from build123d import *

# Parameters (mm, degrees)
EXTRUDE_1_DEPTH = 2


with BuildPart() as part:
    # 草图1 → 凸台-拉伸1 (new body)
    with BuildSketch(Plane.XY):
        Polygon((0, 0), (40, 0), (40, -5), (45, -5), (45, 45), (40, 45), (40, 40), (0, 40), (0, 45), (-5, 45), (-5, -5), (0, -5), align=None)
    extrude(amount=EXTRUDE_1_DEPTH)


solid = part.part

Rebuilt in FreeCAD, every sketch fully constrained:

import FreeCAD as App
import Part
import Sketcher

V = App.Vector
Q = App.Units.Quantity


def add_polygon(sketch, points):
    """Adds a closed chain of lines whose ends are joined by coincident constraints."""
    first, n = sketch.GeometryCount, len(points)
    for a, b in zip(points, points[1:] + points[:1]):
        sketch.addGeometry(Part.LineSegment(App.Vector(*a, 0), App.Vector(*b, 0)), False)
    for i in range(n):
        sketch.addConstraint(Sketcher.Constraint("Coincident", first + i, 2, first + (i + 1) % n, 1))

doc = App.newDocument("Part")
body = doc.addObject("PartDesign::Body", "Body")

sketch1 = doc.addObject("Sketcher::SketchObject", "Sketch")
body.addObject(sketch1)
sketch1.AttachmentSupport = (doc.XY_Plane, [""])
sketch1.MapMode = "FlatFace"
add_polygon(sketch1, [(0, 0), (40, 0), (40, -5), (45, -5), (45, 45), (40, 45), (40, 40), (0, 40), (0, 45), (-5, 45), (-5, -5), (0, -5)])
sketch1.addConstraint(Sketcher.Constraint("Horizontal", 0))
sketch1.addConstraint(Sketcher.Constraint("Vertical", 1))
sketch1.addConstraint(Sketcher.Constraint("Horizontal", 2))
sketch1.addConstraint(Sketcher.Constraint("Vertical", 3))
sketch1.addConstraint(Sketcher.Constraint("Horizontal", 4))
sketch1.addConstraint(Sketcher.Constraint("Vertical", 5))
sketch1.addConstraint(Sketcher.Constraint("Horizontal", 6))
sketch1.addConstraint(Sketcher.Constraint("Vertical", 7))
sketch1.addConstraint(Sketcher.Constraint("Horizontal", 8))
sketch1.addConstraint(Sketcher.Constraint("Vertical", 9))
sketch1.addConstraint(Sketcher.Constraint("Horizontal", 10))
sketch1.addConstraint(Sketcher.Constraint("Vertical", 11))
sketch1.addConstraint(Sketcher.Constraint("Coincident", 11, 2, -1, 1))
sketch1.addConstraint(Sketcher.Constraint("PointOnObject", 6, 2, -2))
sketch1.addConstraint(Sketcher.Constraint("Horizontal", 4, 2, 7, 2))
sketch1.addConstraint(Sketcher.Constraint("Horizontal", 2, 2, 9, 2))
sketch1.addConstraint(Sketcher.Constraint("Vertical", 1, 2, 4, 2))
sketch1.addConstraint(Sketcher.Constraint("Equal", 4, 8))
sketch1.addConstraint(Sketcher.Constraint("Equal", 10, 1))
sketch1.addConstraint(Sketcher.Constraint("Equal", 1, 5))
sketch1.addConstraint(Sketcher.Constraint("DistanceX", 0, 1, 0, 2, Q("40 mm")))
sketch1.addConstraint(Sketcher.Constraint("DistanceX", 2, 1, 2, 2, Q("5 mm")))
sketch1.addConstraint(Sketcher.Constraint("DistanceY", 3, 1, 3, 2, Q("50 mm")))
pad1 = doc.addObject("PartDesign::Pad", "Pad")
body.addObject(pad1)
pad1.Profile = sketch1
pad1.Length = 2

doc.recompute()
